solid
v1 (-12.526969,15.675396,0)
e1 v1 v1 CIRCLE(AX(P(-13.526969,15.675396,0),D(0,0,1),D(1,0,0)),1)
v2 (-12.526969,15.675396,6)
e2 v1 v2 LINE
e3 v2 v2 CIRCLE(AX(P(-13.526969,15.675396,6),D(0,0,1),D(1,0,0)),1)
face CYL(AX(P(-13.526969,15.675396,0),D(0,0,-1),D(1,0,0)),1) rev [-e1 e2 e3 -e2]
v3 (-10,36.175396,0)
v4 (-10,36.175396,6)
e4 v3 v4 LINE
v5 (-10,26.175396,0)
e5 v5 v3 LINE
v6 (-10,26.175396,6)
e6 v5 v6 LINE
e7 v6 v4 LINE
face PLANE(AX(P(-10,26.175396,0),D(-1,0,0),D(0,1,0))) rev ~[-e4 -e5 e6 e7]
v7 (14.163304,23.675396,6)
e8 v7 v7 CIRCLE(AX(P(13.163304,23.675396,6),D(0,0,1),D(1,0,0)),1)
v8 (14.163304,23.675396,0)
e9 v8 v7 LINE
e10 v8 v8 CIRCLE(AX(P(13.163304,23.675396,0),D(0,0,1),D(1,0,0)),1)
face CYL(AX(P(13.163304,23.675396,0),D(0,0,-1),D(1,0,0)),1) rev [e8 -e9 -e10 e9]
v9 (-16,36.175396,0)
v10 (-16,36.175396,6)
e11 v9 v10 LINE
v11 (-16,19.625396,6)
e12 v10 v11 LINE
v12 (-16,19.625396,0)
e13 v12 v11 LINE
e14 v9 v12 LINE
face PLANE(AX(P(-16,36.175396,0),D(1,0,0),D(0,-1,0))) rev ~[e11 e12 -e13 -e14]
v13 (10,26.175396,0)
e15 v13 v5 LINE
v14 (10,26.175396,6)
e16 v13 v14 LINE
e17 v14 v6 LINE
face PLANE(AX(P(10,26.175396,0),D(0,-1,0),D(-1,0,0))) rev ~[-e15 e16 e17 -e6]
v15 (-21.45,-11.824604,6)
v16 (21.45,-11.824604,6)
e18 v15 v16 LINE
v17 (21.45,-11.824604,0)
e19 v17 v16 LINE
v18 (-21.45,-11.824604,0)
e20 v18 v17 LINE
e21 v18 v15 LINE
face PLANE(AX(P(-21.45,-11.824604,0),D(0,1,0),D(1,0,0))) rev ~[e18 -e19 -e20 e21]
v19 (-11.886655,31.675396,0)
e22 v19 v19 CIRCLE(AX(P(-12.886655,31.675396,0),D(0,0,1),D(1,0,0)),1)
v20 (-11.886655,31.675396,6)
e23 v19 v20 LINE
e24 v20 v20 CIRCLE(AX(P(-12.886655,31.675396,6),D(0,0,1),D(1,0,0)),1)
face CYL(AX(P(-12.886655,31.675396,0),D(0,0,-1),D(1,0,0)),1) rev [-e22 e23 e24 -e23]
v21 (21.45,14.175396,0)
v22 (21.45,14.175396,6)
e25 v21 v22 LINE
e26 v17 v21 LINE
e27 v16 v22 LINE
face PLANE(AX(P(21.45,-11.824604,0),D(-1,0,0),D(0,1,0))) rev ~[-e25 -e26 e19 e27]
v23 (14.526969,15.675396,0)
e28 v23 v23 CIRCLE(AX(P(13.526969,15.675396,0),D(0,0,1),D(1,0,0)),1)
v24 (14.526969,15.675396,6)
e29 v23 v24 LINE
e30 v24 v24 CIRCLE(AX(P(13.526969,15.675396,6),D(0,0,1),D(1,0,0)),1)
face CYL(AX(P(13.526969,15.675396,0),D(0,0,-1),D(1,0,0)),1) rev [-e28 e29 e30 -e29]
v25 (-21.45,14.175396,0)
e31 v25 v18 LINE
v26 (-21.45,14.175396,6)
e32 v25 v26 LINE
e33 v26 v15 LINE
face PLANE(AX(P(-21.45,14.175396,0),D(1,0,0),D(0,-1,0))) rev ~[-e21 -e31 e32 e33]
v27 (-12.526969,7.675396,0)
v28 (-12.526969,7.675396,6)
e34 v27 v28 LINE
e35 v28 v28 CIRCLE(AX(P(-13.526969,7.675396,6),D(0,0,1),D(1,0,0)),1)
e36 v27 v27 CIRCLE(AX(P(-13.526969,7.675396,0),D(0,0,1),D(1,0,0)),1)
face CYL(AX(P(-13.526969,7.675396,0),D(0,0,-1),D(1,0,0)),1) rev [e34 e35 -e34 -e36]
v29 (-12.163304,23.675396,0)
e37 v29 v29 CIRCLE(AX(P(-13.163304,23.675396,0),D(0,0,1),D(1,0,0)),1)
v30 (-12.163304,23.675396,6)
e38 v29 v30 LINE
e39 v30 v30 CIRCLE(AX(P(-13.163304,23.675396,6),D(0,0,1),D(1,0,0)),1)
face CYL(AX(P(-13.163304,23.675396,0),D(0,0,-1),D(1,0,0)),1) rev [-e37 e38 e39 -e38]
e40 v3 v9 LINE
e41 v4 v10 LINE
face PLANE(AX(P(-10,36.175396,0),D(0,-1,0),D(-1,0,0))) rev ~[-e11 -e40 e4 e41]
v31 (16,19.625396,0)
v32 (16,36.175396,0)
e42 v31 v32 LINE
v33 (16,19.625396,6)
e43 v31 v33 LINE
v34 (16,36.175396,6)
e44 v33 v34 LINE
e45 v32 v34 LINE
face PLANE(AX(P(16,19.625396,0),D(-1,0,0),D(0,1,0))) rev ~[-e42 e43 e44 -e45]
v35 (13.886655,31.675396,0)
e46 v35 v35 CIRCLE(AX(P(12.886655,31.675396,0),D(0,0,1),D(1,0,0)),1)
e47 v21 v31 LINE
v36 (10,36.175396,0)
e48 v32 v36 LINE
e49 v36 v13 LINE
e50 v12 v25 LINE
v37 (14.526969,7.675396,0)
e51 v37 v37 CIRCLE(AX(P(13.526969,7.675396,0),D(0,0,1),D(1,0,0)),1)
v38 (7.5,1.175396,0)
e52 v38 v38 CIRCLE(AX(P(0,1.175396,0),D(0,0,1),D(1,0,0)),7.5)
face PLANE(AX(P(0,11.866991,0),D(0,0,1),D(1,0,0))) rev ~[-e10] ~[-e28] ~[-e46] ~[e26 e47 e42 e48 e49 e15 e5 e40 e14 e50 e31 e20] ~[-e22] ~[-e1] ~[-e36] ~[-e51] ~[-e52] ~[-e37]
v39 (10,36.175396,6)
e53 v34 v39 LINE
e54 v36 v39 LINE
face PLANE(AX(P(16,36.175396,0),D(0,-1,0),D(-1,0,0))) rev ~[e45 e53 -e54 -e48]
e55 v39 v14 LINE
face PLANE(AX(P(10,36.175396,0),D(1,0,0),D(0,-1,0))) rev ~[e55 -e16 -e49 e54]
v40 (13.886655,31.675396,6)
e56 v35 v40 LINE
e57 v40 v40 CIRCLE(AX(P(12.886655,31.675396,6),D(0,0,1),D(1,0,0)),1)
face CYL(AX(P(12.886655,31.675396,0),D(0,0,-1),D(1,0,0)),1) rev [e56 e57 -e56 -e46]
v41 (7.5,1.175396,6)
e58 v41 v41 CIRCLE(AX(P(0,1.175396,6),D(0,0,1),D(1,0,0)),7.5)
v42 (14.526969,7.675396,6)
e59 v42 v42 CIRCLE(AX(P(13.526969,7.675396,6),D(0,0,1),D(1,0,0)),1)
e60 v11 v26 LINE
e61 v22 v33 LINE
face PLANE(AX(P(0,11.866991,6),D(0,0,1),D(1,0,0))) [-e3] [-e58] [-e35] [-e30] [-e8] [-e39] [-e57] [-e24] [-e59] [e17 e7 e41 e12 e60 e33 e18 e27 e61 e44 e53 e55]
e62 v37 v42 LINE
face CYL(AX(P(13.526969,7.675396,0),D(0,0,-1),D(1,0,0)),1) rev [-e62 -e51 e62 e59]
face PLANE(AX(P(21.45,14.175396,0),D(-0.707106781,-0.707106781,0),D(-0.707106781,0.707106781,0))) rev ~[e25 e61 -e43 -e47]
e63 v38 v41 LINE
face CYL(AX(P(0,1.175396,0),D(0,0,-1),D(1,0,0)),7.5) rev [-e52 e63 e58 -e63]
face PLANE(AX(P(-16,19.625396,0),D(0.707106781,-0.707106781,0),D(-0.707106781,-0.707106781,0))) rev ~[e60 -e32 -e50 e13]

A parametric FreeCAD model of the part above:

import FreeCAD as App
import Part
import Sketcher

doc = App.newDocument("Part")
body = doc.addObject("PartDesign::Body", "Body")

# Sketch on XY plane
sketch1 = body.newObject("Sketcher::SketchObject", "Sketch")
sketch1.AttachmentSupport = (doc.getObject("XY_Plane"), [""])
sketch1.MapMode = "FlatFace"
sketch1.addGeometry([
    Part.LineSegment(App.Vector(-10, 36.2, 0), App.Vector(-16, 36.2, 0)),  # 0
    Part.LineSegment(App.Vector(-16, 36.2, 0), App.Vector(-16, 19.6, 0)),  # 1
    Part.LineSegment(App.Vector(-16, 19.6, 0), App.Vector(-21.4, 14.2, 0)),  # 2
    Part.LineSegment(App.Vector(-21.4, 14.2, 0), App.Vector(-21.4, -11.8, 0)),  # 3
    Part.LineSegment(App.Vector(-21.4, -11.8, 0), App.Vector(21.4, -11.8, 0)),  # 4
    Part.LineSegment(App.Vector(21.4, -11.8, 0), App.Vector(21.4, 14.2, 0)),  # 5
    Part.LineSegment(App.Vector(21.4, 14.2, 0), App.Vector(16, 19.6, 0)),  # 6
    Part.LineSegment(App.Vector(16, 19.6, 0), App.Vector(16, 36.2, 0)),  # 7
    Part.LineSegment(App.Vector(16, 36.2, 0), App.Vector(10, 36.2, 0)),  # 8
    Part.LineSegment(App.Vector(10, 36.2, 0), App.Vector(10, 26.2, 0)),  # 9
    Part.LineSegment(App.Vector(10, 26.2, 0), App.Vector(-10, 26.2, 0)),  # 10
    Part.LineSegment(App.Vector(-10, 26.2, 0), App.Vector(-10, 36.2, 0)),  # 11
    Part.Circle(App.Vector(-13.5, 7.7, 0), App.Vector(0, 0, 1), 1),  # 12
    Part.Circle(App.Vector(0, 1.2, 0), App.Vector(0, 0, 1), 7.5),  # 13
    Part.Circle(App.Vector(13.5, 7.7, 0), App.Vector(0, 0, 1), 1),  # 14
    Part.Circle(App.Vector(-13.5, 15.7, 0), App.Vector(0, 0, 1), 1),  # 15
    Part.Circle(App.Vector(-13.2, 23.7, 0), App.Vector(0, 0, 1), 1),  # 16
    Part.Circle(App.Vector(-12.9, 31.7, 0), App.Vector(0, 0, 1), 1),  # 17
    Part.Circle(App.Vector(13.5, 15.7, 0), App.Vector(0, 0, 1), 1),  # 18
    Part.Circle(App.Vector(13.2, 23.7, 0), App.Vector(0, 0, 1), 1),  # 19
    Part.Circle(App.Vector(12.9, 31.7, 0), App.Vector(0, 0, 1), 1),  # 20
], False)
sketch1.addConstraint([
    Sketcher.Constraint("Coincident", 0, 2, 1, 1),
    Sketcher.Constraint("Coincident", 1, 2, 2, 1),
    Sketcher.Constraint("Coincident", 2, 2, 3, 1),
    Sketcher.Constraint("Coincident", 3, 2, 4, 1),
    Sketcher.Constraint("Coincident", 4, 2, 5, 1),
    Sketcher.Constraint("Coincident", 5, 2, 6, 1),
    Sketcher.Constraint("Coincident", 6, 2, 7, 1),
    Sketcher.Constraint("Coincident", 7, 2, 8, 1),
    Sketcher.Constraint("Coincident", 8, 2, 9, 1),
    Sketcher.Constraint("Coincident", 9, 2, 10, 1),
    Sketcher.Constraint("Coincident", 10, 2, 11, 1),
    Sketcher.Constraint("Coincident", 11, 2, 0, 1),
    Sketcher.Constraint("Horizontal", 0),
    Sketcher.Constraint("Vertical", 1),
    Sketcher.Constraint("Vertical", 3),
    Sketcher.Constraint("Horizontal", 4),
    Sketcher.Constraint("Vertical", 5),
    Sketcher.Constraint("Vertical", 7),
    Sketcher.Constraint("Horizontal", 8),
    Sketcher.Constraint("Vertical", 9),
    Sketcher.Constraint("Horizontal", 10),
    Sketcher.Constraint("Vertical", 11),
    Sketcher.Constraint("Equal", 12, 14),
    Sketcher.Constraint("Equal", 14, 15),
    Sketcher.Constraint("Equal", 15, 16),
    Sketcher.Constraint("Equal", 16, 17),
    Sketcher.Constraint("Equal", 17, 18),
    Sketcher.Constraint("Equal", 18, 19),
    Sketcher.Constraint("Equal", 19, 20),
    Sketcher.Constraint("Symmetric", 12, 3, 14, 3, -2),
    Sketcher.Constraint("Symmetric", 15, 3, 18, 3, -2),
    Sketcher.Constraint("Symmetric", 16, 3, 19, 3, -2),
    Sketcher.Constraint("Symmetric", 17, 3, 20, 3, -2),
    Sketcher.Constraint("Symmetric", 2, 2, 5, 2, -2),
    Sketcher.Constraint("Symmetric", 1, 2, 6, 2, -2),
    Sketcher.Constraint("Symmetric", 8, 2, 11, 2, -2),
    Sketcher.Constraint("PointOnObject", 13, 3, -2),
    Sketcher.Constraint("Perpendicular", 2, 6),
    Sketcher.Constraint("Vertical", 12, 3, 15, 3),
    Sketcher.Constraint("Diameter", 12, 2.0),
    Sketcher.Constraint("Diameter", 13, 15.0),
    Sketcher.Constraint("DistanceX", 0, 2, 0, 1, 6.0),
    Sketcher.Constraint("DistanceX", 10, 2, 10, 1, 20.0),
    Sketcher.Constraint("DistanceY", 3, 2, 3, 1, 26.0),
    Sketcher.Constraint("DistanceY", 9, 2, 9, 1, 10.0),
    Sketcher.Constraint("DistanceX", 4, 1, 4, 2, 42.9),
    Sketcher.Constraint("DistanceY", 12, 3, 15, 3, 8.0),
    Sketcher.Constraint("DistanceY", 15, 3, 16, 3, 8.0),
    Sketcher.Constraint("DistanceY", 16, 3, 17, 3, 8.0),
    Sketcher.Constraint("DistanceY", 3, 2, 13, 3, 13.0),
    Sketcher.Constraint("DistanceY", 5, 2, 7, 2, 22.0),
    Sketcher.Constraint("DistanceY", 13, 3, 12, 3, 6.5),
    Sketcher.Constraint("DistanceX", 12, 3, -1, 1, 13.526969),
    Sketcher.Constraint("DistanceX", 16, 3, 17, 3, 0.276649),
    Sketcher.Constraint("DistanceX", 16, 3, 19, 3, 26.326608),
    Sketcher.Constraint("DistanceY", -1, 1, 12, 3, 7.675396),
])
pad1 = body.newObject("PartDesign::Pad", "Pad")
pad1.Profile = sketch1
pad1.Length = 6

doc.recompute()
